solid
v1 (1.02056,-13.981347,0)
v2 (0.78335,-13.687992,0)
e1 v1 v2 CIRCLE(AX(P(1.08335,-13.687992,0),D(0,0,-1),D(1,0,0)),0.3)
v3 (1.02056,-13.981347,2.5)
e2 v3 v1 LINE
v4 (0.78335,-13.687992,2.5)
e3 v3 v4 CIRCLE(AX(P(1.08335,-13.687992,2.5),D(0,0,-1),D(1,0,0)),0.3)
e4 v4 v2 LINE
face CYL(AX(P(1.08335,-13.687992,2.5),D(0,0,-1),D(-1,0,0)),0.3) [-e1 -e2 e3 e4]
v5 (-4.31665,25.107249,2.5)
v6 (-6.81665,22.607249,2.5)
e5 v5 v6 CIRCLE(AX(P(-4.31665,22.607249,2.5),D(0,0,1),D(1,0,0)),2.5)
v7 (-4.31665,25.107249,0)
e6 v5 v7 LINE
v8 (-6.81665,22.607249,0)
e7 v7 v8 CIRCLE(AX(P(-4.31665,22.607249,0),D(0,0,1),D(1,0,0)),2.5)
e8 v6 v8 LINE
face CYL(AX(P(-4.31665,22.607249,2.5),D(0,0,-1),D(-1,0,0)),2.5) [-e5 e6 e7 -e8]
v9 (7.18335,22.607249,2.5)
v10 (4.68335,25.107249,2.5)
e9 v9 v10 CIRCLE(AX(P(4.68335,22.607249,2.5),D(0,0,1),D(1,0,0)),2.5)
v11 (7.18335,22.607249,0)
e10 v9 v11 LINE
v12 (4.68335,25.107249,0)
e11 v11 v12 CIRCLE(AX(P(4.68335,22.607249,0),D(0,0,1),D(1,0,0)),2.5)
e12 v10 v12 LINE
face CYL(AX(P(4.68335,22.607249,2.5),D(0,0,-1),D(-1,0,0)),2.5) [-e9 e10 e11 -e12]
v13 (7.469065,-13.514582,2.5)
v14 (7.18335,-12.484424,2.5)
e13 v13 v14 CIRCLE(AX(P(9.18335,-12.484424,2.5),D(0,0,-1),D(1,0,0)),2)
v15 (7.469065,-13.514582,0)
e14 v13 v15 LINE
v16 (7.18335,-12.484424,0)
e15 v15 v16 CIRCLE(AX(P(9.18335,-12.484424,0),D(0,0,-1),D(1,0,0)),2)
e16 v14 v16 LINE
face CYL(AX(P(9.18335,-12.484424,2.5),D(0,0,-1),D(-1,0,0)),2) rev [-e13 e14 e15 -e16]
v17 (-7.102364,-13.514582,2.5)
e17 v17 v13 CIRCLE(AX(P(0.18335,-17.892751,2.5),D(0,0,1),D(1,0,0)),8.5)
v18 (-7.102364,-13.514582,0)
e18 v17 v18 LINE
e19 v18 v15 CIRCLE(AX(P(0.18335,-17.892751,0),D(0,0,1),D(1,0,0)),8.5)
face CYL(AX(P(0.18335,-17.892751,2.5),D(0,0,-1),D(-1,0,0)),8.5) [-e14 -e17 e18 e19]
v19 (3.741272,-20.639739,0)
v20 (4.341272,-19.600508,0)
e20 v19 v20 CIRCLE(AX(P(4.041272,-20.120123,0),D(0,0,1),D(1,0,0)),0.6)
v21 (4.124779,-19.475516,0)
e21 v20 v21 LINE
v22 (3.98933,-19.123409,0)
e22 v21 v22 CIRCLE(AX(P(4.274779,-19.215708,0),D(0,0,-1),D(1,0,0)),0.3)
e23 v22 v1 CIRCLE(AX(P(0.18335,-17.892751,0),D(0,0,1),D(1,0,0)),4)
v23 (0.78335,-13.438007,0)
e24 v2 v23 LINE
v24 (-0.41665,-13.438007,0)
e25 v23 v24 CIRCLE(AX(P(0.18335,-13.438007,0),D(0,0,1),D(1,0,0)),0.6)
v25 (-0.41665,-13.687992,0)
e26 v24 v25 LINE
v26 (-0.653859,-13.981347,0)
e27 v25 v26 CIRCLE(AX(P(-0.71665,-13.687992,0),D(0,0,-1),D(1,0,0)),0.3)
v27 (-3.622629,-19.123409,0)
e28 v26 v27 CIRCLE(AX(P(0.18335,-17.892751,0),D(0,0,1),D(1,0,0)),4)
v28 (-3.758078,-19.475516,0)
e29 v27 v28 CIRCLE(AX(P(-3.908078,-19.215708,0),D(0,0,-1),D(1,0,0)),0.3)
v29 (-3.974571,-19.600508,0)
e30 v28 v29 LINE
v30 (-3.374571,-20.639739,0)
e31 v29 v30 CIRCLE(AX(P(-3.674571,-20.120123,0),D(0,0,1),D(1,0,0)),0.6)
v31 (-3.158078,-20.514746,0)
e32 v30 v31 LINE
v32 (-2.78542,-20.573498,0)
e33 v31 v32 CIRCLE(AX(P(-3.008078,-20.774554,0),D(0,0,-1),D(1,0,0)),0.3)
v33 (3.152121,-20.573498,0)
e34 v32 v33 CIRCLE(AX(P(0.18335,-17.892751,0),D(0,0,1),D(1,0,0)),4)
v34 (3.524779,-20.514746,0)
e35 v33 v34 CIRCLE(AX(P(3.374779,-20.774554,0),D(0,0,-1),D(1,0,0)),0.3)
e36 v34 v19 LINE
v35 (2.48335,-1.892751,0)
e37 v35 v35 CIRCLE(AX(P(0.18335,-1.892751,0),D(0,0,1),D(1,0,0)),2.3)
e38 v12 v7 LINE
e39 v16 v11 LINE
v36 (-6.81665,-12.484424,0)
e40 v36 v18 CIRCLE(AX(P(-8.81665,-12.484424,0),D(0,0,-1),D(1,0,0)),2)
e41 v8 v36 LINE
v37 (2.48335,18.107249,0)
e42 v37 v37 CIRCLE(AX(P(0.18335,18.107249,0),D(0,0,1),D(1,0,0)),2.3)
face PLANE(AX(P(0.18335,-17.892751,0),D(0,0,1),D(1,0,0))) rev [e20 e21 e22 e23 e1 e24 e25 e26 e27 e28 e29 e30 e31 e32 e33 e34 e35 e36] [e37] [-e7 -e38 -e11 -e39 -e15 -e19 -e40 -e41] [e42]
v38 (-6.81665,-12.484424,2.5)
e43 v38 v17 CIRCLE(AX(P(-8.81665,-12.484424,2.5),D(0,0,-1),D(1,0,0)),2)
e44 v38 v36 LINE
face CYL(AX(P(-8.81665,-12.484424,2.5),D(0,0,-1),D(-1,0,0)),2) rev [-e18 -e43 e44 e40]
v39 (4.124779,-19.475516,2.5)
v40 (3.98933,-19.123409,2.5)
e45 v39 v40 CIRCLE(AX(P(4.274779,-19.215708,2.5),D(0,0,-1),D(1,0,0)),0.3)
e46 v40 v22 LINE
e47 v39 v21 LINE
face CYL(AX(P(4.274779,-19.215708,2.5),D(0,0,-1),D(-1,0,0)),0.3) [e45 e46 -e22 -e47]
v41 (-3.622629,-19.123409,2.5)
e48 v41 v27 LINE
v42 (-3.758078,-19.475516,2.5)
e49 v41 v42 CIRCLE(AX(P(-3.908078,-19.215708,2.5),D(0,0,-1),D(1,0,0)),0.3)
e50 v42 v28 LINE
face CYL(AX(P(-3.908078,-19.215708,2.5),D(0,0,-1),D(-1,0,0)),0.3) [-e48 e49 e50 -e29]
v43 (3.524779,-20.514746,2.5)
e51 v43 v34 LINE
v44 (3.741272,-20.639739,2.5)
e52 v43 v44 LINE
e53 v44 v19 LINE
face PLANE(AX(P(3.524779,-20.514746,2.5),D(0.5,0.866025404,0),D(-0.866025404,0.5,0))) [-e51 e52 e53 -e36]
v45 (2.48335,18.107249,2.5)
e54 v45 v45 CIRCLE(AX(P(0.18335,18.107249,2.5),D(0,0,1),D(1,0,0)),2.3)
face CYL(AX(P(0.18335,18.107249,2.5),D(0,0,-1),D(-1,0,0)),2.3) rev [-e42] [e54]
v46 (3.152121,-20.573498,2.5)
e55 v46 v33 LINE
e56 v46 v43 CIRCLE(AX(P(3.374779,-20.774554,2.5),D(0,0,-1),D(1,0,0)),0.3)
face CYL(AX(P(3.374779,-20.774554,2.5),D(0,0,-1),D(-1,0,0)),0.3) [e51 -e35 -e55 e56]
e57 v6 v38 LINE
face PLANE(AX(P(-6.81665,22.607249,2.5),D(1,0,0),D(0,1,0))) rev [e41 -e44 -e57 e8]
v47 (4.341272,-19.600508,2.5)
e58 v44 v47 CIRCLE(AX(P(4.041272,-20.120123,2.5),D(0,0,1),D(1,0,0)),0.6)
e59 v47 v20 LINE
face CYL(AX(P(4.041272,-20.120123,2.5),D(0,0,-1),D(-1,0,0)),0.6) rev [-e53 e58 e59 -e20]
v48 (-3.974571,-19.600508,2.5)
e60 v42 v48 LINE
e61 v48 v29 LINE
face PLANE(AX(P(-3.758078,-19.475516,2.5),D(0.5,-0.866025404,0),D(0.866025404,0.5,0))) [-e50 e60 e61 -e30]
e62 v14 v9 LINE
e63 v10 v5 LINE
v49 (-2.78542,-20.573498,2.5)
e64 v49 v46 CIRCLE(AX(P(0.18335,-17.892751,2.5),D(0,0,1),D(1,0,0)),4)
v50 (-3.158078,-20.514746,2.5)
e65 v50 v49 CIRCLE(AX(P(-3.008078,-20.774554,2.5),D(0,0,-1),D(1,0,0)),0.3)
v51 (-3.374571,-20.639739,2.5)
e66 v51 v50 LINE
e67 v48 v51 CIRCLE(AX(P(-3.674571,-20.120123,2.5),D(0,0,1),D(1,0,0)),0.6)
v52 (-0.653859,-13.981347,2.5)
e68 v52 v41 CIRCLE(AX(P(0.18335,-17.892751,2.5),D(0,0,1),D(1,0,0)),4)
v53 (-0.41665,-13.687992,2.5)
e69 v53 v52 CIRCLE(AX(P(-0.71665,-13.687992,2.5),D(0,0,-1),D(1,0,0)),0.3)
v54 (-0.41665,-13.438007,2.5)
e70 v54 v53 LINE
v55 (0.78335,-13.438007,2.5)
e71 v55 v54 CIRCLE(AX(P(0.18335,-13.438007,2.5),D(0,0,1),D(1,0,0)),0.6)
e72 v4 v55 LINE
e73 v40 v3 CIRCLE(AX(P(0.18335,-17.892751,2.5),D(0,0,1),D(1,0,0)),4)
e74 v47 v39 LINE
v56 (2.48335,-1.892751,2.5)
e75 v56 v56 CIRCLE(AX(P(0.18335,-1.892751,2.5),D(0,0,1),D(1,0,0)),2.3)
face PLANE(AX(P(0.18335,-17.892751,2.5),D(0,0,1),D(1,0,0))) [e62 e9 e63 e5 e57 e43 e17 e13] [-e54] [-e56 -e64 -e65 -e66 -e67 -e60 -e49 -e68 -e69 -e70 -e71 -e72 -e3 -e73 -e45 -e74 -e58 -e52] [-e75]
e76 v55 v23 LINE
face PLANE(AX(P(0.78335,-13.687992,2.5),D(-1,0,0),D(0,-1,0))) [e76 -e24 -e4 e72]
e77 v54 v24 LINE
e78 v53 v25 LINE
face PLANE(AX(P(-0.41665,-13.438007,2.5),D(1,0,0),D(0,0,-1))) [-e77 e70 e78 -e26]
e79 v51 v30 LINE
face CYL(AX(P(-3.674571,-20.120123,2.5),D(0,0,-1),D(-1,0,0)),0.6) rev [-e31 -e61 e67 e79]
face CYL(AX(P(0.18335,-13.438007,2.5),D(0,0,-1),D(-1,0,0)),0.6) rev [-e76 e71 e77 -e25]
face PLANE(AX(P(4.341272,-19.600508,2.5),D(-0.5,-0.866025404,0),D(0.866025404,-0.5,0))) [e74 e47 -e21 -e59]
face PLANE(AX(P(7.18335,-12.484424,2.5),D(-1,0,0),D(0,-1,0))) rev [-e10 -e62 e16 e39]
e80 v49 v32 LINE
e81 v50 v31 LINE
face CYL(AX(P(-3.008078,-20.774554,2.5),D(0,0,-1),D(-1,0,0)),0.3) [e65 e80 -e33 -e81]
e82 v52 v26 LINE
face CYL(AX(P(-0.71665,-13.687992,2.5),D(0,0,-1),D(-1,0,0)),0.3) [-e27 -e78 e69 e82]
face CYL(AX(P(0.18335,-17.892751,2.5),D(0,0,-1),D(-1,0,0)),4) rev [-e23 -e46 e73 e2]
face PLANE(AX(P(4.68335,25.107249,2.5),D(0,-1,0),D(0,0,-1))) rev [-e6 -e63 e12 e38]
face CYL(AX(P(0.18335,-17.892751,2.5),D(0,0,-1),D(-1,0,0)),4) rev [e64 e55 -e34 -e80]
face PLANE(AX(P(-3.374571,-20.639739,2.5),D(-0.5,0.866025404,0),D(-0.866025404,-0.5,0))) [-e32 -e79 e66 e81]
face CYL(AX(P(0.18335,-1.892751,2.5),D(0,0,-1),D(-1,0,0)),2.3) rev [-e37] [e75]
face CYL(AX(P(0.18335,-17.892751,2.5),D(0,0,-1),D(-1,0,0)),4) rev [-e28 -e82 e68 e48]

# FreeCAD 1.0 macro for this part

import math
import FreeCAD as App
import Part
import Sketcher

V = App.Vector
Q = App.Units.Quantity

doc = App.newDocument("Part")
body = doc.addObject("PartDesign::Body", "Body")

# Sketch on XY plane
sketch1 = body.newObject("Sketcher::SketchObject", "Sketch")
sketch1.AttachmentSupport = (doc.getObject("XY_Plane"), [""])
sketch1.MapMode = "FlatFace"
sketch1.addGeometry([
    Part.LineSegment(V(7.18, -12.48, 0), V(7.18, 22.61, 0)),  # 0
    Part.ArcOfCircle(Part.Circle(V(4.68, 22.61, 0), V(0, 0, 1), 2.5), math.radians(0), math.radians(90)),  # 1
    Part.LineSegment(V(4.68, 25.11, 0), V(-4.32, 25.11, 0)),  # 2
    Part.ArcOfCircle(Part.Circle(V(-4.32, 22.61, 0), V(0, 0, 1), 2.5), math.radians(90), math.radians(180)),  # 3
    Part.LineSegment(V(-6.82, 22.61, 0), V(-6.82, -12.48, 0)),  # 4
    Part.ArcOfCircle(Part.Circle(V(-8.82, -12.48, 0), V(0, 0, 1), 2), math.radians(-31), math.radians(0)),  # 5
    Part.ArcOfCircle(Part.Circle(V(0.18, -17.89, 0), V(0, 0, 1), 8.5), math.radians(149), math.radians(391)),  # 6
    Part.ArcOfCircle(Part.Circle(V(9.18, -12.48, 0), V(0, 0, 1), 2), math.radians(180), math.radians(211)),  # 7
    Part.LineSegment(V(4.12, -19.48, 0), V(4.34, -19.6, 0)),  # 8
    Part.ArcOfCircle(Part.Circle(V(4.04, -20.12, 0), V(0, 0, 1), 0.6), math.radians(-120), math.radians(60)),  # 9
    Part.LineSegment(V(3.74, -20.64, 0), V(3.52, -20.51, 0)),  # 10
    Part.ArcOfCircle(Part.Circle(V(3.37, -20.77, 0), V(0, 0, 1), 0.3), math.radians(60), math.radians(138)),  # 11
    Part.ArcOfCircle(Part.Circle(V(0.18, -17.89, 0), V(0, 0, 1), 4), math.radians(-138), math.radians(-42)),  # 12
    Part.ArcOfCircle(Part.Circle(V(-3.01, -20.77, 0), V(0, 0, 1), 0.3), math.radians(42), math.radians(120)),  # 13
    Part.LineSegment(V(-3.16, -20.51, 0), V(-3.37, -20.64, 0)),  # 14
    Part.ArcOfCircle(Part.Circle(V(-3.67, -20.12, 0), V(0, 0, 1), 0.6), math.radians(120), math.radians(300)),  # 15
    Part.LineSegment(V(-3.97, -19.6, 0), V(-3.76, -19.48, 0)),  # 16
    Part.ArcOfCircle(Part.Circle(V(-3.91, -19.22, 0), V(0, 0, 1), 0.3), math.radians(-60), math.radians(18)),  # 17
    Part.ArcOfCircle(Part.Circle(V(0.18, -17.89, 0), V(0, 0, 1), 4), math.radians(102), math.radians(198)),  # 18
    Part.ArcOfCircle(Part.Circle(V(-0.72, -13.69, 0), V(0, 0, 1), 0.3), math.radians(-78), math.radians(0)),  # 19
    Part.LineSegment(V(-0.42, -13.69, 0), V(-0.42, -13.44, 0)),  # 20
    Part.ArcOfCircle(Part.Circle(V(0.18, -13.44, 0), V(0, 0, 1), 0.6), math.radians(0), math.radians(180)),  # 21
    Part.LineSegment(V(0.78, -13.44, 0), V(0.78, -13.69, 0)),  # 22
    Part.ArcOfCircle(Part.Circle(V(1.08, -13.69, 0), V(0, 0, 1), 0.3), math.radians(180), math.radians(258)),  # 23
    Part.ArcOfCircle(Part.Circle(V(0.18, -17.89, 0), V(0, 0, 1), 4), math.radians(-18), math.radians(78)),  # 24
    Part.ArcOfCircle(Part.Circle(V(4.27, -19.22, 0), V(0, 0, 1), 0.3), math.radians(162), math.radians(240)),  # 25
    Part.Circle(V(0.18, -1.89, 0), V(0, 0, 1), 2.3),  # 26
    Part.Circle(V(0.18, 18.11, 0), V(0, 0, 1), 2.3),  # 27
], False)
sketch1.addConstraint([
    Sketcher.Constraint("Tangent", 0, 2, 1, 1),
    Sketcher.Constraint("Tangent", 1, 2, 2, 1),
    Sketcher.Constraint("Tangent", 2, 2, 3, 1),
    Sketcher.Constraint("Tangent", 3, 2, 4, 1),
    Sketcher.Constraint("Tangent", 4, 2, 5, 2),
    Sketcher.Constraint("Tangent", 5, 1, 6, 1),
    Sketcher.Constraint("Tangent", 6, 2, 7, 2),
    Sketcher.Constraint("Tangent", 7, 1, 0, 1),
    Sketcher.Constraint("Tangent", 8, 2, 9, 2),
    Sketcher.Constraint("Tangent", 9, 1, 10, 1),
    Sketcher.Constraint("Tangent", 10, 2, 11, 1),
    Sketcher.Constraint("Tangent", 11, 2, 12, 2),
    Sketcher.Constraint("Tangent", 12, 1, 13, 1),
    Sketcher.Constraint("Tangent", 13, 2, 14, 1),
    Sketcher.Constraint("Tangent", 14, 2, 15, 2),
    Sketcher.Constraint("Tangent", 15, 1, 16, 1),
    Sketcher.Constraint("Tangent", 16, 2, 17, 1),
    Sketcher.Constraint("Tangent", 17, 2, 18, 2),
    Sketcher.Constraint("Tangent", 18, 1, 19, 1),
    Sketcher.Constraint("Tangent", 19, 2, 20, 1),
    Sketcher.Constraint("Tangent", 20, 2, 21, 2),
    Sketcher.Constraint("Tangent", 21, 1, 22, 1),
    Sketcher.Constraint("Tangent", 22, 2, 23, 1),
    Sketcher.Constraint("Tangent", 23, 2, 24, 2),
    Sketcher.Constraint("Tangent", 24, 1, 25, 1),
    Sketcher.Constraint("Tangent", 25, 2, 8, 1),
    Sketcher.Constraint("Vertical", 0),
    Sketcher.Constraint("Horizontal", 2),
    Sketcher.Constraint("Vertical", 4),
    Sketcher.Constraint("Vertical", 20),
    Sketcher.Constraint("Vertical", 22),
    Sketcher.Constraint("Coincident", 12, 3, 6, 3),
    Sketcher.Constraint("Coincident", 18, 3, 6, 3),
    Sketcher.Constraint("Coincident", 24, 3, 6, 3),
    Sketcher.Constraint("Equal", 1, 3),
    Sketcher.Constraint("Equal", 5, 7),
    Sketcher.Constraint("Equal", 11, 13),
    Sketcher.Constraint("Equal", 9, 15),
    Sketcher.Constraint("Equal", 13, 17),
    Sketcher.Constraint("Equal", 12, 18),
    Sketcher.Constraint("Equal", 17, 19),
    Sketcher.Constraint("Equal", 15, 21),
    Sketcher.Constraint("Equal", 19, 23),
    Sketcher.Constraint("Equal", 18, 24),
    Sketcher.Constraint("Equal", 23, 25),
    Sketcher.Constraint("Equal", 26, 27),
    Sketcher.Constraint("Parallel", 8, 10),
    Sketcher.Constraint("Parallel", 14, 16),
    Sketcher.Constraint("Horizontal", 5, 3, 7, 3),
    Sketcher.Constraint("Horizontal", 11, 3, 13, 3),
    Sketcher.Constraint("Horizontal", 9, 3, 15, 3),
    Sketcher.Constraint("Horizontal", 19, 3, 23, 3),
    Sketcher.Constraint("Horizontal", 10, 2, 13, 2),
    Sketcher.Constraint("Vertical", 24, 3, 26, 3),
    Sketcher.Constraint("Vertical", 26, 3, 27, 3),
    Sketcher.Constraint("Equal", 8, 10),
    Sketcher.Constraint("Radius", 5, 2.0),
    Sketcher.Constraint("Radius", 12, 4.0),
    Sketcher.Constraint("Diameter", 26, 4.6),
    Sketcher.Constraint("Radius", 1, 2.5),
    Sketcher.Constraint("Radius", 6, 8.5),
    Sketcher.Constraint("Radius", 9, 0.6),
    Sketcher.Constraint("Radius", 11, 0.3),
    Sketcher.Constraint("DistanceX", 2, 2, 2, 1, 9.0),
    Sketcher.Constraint("Angle", 8, Q("-30 deg")),
    Sketcher.Constraint("DistanceY", 26, 3, 27, 3, 20.0),
    Sketcher.Constraint("DistanceY", 27, 3, 1, 2, 7.0),
    Sketcher.Constraint("DistanceY", 6, 3, 1, 3, 40.5),
    Sketcher.Constraint("DistanceY", 9, 3, 7, 3, 7.635699),
    Sketcher.Constraint("DistanceY", 17, 3, 21, 3, 5.777701),
    Sketcher.Constraint("DistanceX", -1, 1, 1, 3, 4.68335),
    Sketcher.Constraint("DistanceY", -1, 1, 1, 3, 22.607249),
])
pad1 = body.newObject("PartDesign::Pad", "Pad")
pad1.Profile = sketch1
pad1.Length = 2.5

doc.recompute()
